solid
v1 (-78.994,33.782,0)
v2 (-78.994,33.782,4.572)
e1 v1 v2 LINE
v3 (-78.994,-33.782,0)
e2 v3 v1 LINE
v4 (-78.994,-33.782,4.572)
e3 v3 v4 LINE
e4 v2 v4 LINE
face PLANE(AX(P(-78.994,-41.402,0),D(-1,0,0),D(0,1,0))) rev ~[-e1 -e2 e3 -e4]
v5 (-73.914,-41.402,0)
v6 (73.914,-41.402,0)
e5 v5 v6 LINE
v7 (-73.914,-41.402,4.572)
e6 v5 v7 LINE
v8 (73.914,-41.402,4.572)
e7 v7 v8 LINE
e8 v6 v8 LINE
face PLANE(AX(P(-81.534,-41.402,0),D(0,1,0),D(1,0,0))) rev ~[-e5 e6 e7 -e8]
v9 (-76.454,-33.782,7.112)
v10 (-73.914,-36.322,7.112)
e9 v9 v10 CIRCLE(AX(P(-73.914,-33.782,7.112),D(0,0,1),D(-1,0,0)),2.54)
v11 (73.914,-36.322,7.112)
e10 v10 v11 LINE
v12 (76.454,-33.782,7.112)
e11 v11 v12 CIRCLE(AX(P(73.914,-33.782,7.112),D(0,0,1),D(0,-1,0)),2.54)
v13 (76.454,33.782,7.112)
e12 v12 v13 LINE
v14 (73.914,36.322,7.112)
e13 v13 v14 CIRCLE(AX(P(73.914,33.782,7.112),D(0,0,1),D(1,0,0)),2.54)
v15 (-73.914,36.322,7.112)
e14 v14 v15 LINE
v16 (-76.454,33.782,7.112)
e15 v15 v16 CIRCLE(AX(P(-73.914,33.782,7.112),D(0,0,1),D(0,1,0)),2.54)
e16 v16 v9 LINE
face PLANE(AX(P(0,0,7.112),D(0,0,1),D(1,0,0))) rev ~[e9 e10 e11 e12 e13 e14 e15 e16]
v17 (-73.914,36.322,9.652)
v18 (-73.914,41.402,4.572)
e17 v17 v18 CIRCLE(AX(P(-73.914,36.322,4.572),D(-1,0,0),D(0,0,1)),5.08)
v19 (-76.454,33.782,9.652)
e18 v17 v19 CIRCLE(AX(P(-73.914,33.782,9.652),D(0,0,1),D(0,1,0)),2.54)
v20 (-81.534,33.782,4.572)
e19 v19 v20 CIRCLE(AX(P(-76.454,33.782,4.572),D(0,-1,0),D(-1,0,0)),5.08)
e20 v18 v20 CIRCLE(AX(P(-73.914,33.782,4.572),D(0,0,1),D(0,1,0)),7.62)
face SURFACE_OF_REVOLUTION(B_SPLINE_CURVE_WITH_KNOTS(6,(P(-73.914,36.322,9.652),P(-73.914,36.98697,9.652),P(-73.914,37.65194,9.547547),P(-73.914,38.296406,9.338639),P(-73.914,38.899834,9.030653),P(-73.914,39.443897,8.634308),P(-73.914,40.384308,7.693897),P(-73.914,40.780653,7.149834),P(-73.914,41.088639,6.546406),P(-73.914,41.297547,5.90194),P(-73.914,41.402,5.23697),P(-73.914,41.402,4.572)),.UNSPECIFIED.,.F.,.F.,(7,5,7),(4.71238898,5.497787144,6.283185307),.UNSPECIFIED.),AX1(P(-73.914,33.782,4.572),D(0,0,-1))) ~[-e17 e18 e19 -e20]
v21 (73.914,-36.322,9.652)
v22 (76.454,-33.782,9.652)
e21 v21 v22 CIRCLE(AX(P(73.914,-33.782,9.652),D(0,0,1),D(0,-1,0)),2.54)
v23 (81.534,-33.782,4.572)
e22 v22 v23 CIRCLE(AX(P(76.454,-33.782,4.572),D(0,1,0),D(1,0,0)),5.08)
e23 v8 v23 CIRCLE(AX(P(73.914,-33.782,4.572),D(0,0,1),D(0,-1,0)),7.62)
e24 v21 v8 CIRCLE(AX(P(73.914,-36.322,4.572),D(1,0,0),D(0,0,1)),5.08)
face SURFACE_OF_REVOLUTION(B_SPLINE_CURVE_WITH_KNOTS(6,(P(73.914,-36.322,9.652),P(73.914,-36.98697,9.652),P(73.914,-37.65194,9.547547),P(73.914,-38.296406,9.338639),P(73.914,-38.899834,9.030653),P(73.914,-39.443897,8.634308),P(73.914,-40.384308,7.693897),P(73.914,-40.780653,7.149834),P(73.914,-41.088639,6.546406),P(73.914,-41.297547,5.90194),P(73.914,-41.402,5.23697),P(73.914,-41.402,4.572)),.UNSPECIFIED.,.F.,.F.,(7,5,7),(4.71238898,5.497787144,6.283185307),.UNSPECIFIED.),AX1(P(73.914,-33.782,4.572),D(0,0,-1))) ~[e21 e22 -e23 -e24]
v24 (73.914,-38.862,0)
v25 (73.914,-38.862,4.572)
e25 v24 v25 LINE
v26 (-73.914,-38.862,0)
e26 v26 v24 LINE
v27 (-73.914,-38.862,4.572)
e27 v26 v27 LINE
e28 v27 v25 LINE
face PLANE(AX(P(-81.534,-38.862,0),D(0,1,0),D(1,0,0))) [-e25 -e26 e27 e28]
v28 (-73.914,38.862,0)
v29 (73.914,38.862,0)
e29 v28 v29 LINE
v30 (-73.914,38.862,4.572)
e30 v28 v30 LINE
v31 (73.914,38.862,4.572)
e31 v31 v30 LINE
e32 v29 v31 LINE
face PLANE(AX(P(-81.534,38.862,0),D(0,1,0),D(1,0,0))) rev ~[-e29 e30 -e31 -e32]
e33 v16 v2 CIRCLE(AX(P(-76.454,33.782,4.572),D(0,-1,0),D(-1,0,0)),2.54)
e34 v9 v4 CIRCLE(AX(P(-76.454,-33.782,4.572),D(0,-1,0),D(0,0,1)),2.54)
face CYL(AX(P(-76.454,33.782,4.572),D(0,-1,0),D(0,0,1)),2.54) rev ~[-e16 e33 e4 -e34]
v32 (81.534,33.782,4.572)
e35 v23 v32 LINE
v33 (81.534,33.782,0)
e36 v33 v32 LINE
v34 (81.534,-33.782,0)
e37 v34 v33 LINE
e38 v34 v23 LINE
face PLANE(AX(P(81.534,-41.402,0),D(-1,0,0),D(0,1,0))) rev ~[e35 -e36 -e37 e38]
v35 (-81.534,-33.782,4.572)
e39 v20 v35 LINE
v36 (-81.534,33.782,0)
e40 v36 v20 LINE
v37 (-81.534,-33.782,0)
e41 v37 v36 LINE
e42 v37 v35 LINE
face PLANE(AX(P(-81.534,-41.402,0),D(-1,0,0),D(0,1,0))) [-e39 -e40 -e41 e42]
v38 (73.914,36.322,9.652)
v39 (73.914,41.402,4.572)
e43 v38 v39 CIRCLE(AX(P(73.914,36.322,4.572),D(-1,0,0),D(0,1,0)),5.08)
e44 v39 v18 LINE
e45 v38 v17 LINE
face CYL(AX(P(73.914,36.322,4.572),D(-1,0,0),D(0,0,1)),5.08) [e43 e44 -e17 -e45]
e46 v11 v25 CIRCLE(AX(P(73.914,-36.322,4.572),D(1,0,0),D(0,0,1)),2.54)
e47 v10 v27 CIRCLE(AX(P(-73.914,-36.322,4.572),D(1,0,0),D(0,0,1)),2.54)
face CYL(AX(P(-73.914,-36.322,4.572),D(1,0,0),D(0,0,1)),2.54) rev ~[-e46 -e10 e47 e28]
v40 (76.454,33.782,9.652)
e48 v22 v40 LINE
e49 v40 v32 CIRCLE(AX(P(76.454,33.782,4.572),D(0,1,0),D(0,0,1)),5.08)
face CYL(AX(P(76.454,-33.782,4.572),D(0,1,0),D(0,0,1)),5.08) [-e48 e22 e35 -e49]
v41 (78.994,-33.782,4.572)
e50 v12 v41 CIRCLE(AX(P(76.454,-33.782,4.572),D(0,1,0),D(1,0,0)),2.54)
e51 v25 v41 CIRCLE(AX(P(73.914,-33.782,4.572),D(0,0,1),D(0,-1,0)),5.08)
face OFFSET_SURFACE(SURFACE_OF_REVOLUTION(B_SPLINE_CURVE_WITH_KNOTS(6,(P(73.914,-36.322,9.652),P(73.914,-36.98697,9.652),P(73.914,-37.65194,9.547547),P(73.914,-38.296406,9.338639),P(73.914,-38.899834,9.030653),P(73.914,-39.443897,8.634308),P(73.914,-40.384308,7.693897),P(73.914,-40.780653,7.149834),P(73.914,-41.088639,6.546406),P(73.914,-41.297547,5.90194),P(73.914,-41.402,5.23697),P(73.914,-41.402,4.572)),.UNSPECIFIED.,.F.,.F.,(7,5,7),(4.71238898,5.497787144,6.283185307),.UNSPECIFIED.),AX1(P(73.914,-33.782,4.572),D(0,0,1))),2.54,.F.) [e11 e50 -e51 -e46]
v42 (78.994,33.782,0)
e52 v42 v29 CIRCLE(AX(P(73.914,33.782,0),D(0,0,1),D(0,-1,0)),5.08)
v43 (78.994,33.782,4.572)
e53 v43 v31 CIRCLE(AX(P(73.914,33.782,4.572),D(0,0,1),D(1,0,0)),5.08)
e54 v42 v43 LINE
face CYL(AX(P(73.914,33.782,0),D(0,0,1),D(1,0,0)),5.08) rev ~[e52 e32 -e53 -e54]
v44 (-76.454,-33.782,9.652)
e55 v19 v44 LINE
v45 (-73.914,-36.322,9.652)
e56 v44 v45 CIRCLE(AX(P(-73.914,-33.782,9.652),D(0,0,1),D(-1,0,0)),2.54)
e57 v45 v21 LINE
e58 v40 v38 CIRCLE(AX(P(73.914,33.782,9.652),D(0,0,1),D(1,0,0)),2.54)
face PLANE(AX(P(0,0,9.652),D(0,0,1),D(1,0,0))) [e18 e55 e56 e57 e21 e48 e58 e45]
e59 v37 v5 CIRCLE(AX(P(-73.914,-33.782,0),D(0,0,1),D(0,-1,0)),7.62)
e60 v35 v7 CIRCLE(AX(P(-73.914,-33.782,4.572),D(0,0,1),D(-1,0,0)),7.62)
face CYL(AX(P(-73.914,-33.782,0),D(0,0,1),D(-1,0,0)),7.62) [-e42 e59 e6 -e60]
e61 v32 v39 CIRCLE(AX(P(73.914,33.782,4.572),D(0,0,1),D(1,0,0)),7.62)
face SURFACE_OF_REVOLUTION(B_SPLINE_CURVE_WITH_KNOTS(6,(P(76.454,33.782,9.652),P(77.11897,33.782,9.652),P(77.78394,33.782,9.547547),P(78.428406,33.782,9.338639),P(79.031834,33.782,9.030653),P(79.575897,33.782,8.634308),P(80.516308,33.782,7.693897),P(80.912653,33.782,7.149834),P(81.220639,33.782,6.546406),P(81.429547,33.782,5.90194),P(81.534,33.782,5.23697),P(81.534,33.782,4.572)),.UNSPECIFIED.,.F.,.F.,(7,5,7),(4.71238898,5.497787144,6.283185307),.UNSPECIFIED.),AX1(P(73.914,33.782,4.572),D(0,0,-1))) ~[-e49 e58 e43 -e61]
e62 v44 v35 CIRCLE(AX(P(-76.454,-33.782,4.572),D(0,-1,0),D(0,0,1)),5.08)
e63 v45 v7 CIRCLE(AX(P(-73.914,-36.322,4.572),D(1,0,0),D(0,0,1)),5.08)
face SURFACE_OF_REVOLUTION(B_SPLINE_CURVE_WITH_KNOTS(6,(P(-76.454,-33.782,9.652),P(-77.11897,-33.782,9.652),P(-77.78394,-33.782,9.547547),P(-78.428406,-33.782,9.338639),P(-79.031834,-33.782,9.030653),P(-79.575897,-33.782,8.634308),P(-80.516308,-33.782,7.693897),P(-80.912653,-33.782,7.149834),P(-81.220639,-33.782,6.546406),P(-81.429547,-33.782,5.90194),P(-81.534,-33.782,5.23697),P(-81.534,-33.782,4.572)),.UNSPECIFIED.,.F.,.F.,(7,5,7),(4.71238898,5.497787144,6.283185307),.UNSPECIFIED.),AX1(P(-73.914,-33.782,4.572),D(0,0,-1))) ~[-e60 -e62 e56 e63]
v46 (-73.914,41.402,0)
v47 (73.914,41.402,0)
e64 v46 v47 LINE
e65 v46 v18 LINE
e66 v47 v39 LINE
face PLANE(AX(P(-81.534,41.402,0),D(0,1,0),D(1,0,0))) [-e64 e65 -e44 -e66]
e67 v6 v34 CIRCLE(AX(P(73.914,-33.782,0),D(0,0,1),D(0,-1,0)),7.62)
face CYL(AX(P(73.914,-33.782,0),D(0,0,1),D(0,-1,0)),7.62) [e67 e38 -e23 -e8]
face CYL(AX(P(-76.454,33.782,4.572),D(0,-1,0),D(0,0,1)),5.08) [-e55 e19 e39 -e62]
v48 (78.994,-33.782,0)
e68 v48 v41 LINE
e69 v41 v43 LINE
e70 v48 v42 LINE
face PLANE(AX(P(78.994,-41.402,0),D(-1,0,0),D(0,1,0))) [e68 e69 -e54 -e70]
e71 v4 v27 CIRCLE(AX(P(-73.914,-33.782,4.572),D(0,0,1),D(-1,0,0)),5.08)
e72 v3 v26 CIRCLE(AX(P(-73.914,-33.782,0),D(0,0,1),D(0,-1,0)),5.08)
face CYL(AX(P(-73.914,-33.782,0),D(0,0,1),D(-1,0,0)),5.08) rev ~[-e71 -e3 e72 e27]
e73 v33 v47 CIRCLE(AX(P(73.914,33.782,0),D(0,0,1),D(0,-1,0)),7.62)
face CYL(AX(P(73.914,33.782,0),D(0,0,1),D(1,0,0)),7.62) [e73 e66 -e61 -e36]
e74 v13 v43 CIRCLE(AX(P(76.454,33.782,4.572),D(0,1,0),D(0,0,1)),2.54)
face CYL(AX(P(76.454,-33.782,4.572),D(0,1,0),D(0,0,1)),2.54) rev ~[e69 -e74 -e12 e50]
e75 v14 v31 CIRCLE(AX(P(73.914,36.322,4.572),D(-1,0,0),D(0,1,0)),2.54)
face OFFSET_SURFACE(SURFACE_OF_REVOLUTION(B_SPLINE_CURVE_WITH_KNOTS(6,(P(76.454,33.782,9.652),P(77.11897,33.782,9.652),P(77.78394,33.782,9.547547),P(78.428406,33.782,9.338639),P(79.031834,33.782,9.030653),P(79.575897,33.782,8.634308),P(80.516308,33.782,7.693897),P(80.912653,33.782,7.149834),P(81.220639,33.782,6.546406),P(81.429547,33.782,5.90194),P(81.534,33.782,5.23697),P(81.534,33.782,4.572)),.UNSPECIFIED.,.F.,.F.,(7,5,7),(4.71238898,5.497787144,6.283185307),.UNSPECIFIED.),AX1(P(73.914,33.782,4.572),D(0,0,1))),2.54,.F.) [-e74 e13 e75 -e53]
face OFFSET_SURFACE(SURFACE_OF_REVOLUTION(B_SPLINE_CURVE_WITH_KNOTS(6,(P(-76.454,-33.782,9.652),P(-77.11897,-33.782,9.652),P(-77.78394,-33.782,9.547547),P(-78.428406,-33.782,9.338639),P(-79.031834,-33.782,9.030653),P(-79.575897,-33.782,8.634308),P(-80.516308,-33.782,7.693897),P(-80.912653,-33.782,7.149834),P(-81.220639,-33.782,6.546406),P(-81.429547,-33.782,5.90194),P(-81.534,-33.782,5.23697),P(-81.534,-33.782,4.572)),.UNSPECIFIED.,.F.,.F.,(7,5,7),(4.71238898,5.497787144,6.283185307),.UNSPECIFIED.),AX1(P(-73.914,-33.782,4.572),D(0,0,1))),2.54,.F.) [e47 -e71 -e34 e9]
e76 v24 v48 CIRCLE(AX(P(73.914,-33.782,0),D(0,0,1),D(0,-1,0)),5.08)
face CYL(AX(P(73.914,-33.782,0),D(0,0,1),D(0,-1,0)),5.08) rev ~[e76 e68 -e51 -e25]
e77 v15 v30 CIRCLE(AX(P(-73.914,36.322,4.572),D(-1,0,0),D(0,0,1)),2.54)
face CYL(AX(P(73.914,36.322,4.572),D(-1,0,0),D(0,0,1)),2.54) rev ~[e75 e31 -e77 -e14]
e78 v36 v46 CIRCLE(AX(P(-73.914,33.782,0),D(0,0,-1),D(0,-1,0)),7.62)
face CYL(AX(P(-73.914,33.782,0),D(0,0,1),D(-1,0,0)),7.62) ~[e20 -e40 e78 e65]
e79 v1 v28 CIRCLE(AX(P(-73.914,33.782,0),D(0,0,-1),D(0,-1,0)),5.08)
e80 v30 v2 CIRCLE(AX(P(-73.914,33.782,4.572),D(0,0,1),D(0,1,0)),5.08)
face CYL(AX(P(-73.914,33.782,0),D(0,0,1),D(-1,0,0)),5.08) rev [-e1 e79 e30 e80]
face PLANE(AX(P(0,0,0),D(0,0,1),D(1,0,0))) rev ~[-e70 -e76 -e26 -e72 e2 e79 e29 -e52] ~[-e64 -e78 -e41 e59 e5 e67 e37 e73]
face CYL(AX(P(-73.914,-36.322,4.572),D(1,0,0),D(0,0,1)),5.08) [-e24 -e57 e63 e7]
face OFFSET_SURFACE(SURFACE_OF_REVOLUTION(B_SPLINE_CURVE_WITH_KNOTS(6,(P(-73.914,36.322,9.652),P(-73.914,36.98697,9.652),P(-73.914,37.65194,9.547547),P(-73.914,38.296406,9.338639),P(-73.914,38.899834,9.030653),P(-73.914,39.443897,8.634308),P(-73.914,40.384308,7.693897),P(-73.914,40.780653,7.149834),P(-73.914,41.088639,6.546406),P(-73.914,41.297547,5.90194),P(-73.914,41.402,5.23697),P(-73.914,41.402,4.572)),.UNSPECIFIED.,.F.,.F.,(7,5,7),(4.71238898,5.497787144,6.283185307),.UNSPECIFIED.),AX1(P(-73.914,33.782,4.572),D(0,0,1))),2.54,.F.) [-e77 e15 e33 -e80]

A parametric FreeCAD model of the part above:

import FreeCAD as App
import Part
import Sketcher

V = App.Vector
Q = App.Units.Quantity


def edges_at(feature, points):
    """Names of the edges that pass closest to the given points."""
    edges = feature.Shape.Edges
    near = lambda p: min(range(len(edges)), key=lambda i: edges[i].distToShape(Part.Vertex(*p))[0])
    return sorted({f"Edge{near(p) + 1}" for p in points})


def faces_at(feature, points):
    """Names of the faces that lie closest to the given points."""
    faces = feature.Shape.Faces
    near = lambda p: min(range(len(faces)), key=lambda i: faces[i].distToShape(Part.Vertex(*p))[0])
    return sorted({f"Face{near(p) + 1}" for p in points})


def add_polygon(sketch, points):
    """Adds a closed chain of lines whose ends are joined by coincident constraints."""
    first, n = sketch.GeometryCount, len(points)
    for a, b in zip(points, points[1:] + points[:1]):
        sketch.addGeometry(Part.LineSegment(App.Vector(*a, 0), App.Vector(*b, 0)), False)
    for i in range(n):
        sketch.addConstraint(Sketcher.Constraint("Coincident", first + i, 2, first + (i + 1) % n, 1))

doc = App.newDocument("Part")
body = doc.addObject("PartDesign::Body", "Body")

# Sketch on XY plane
sketch1 = doc.addObject("Sketcher::SketchObject", "Sketch")
body.addObject(sketch1)
sketch1.AttachmentSupport = (doc.XY_Plane, [""])
sketch1.MapMode = "FlatFace"
add_polygon(sketch1, [(-81.534, 41.402), (-81.534, -41.402), (81.534, -41.402), (81.534, 41.402)])  # lines 0-3
sketch1.addConstraint(Sketcher.Constraint("Vertical", 0))
sketch1.addConstraint(Sketcher.Constraint("Horizontal", 1))
sketch1.addConstraint(Sketcher.Constraint("Vertical", 2))
sketch1.addConstraint(Sketcher.Constraint("Horizontal", 3))
sketch1.addConstraint(Sketcher.Constraint("Symmetric", 0, 2, 2, 2, -1, 1))
sketch1.addConstraint(Sketcher.Constraint("DistanceX", 1, 1, 1, 2, Q("6.42 in")))
sketch1.addConstraint(Sketcher.Constraint("DistanceY", 0, 2, 0, 1, Q("3.26 in")))
pad1 = doc.addObject("PartDesign::Pad", "Pad")
body.addObject(pad1)
pad1.Profile = sketch1
pad1.Length = Q("0.38 in")
doc.recompute()

fillet = doc.addObject("PartDesign::Fillet", "Fillet")
body.addObject(fillet)
fillet.Base = (pad1, edges_at(pad1, [
    (-81.534, 41.402, 4.826),
    (-81.534, -41.402, 4.826),
    (81.534, 41.402, 4.826),
    (81.534, -41.402, 4.826),
]))
fillet.Radius = Q("0.3 in")
doc.recompute()

fillet2 = doc.addObject("PartDesign::Fillet", "Fillet001")
body.addObject(fillet2)
fillet2.Base = (fillet, edges_at(fillet, [
    (0, -41.402, 9.652),
    (-79.302, -39.17, 9.652),
    (79.302, -39.17, 9.652),
    (-81.534, 0, 9.652),
    (81.534, 0, 9.652),
    (-79.302, 39.17, 9.652),
    (79.302, 39.17, 9.652),
    (0, 41.402, 9.652),
]))
fillet2.Radius = Q("0.2 in")
doc.recompute()

thickness = doc.addObject("PartDesign::Thickness", "Thickness")
body.addObject(thickness)
thickness.Base = (fillet2, faces_at(fillet2, [(0, 0, 0)]))
thickness.Value = Q("0.1 in")
thickness.Reversed = True
thickness.Join = "Arc"

doc.recompute()
